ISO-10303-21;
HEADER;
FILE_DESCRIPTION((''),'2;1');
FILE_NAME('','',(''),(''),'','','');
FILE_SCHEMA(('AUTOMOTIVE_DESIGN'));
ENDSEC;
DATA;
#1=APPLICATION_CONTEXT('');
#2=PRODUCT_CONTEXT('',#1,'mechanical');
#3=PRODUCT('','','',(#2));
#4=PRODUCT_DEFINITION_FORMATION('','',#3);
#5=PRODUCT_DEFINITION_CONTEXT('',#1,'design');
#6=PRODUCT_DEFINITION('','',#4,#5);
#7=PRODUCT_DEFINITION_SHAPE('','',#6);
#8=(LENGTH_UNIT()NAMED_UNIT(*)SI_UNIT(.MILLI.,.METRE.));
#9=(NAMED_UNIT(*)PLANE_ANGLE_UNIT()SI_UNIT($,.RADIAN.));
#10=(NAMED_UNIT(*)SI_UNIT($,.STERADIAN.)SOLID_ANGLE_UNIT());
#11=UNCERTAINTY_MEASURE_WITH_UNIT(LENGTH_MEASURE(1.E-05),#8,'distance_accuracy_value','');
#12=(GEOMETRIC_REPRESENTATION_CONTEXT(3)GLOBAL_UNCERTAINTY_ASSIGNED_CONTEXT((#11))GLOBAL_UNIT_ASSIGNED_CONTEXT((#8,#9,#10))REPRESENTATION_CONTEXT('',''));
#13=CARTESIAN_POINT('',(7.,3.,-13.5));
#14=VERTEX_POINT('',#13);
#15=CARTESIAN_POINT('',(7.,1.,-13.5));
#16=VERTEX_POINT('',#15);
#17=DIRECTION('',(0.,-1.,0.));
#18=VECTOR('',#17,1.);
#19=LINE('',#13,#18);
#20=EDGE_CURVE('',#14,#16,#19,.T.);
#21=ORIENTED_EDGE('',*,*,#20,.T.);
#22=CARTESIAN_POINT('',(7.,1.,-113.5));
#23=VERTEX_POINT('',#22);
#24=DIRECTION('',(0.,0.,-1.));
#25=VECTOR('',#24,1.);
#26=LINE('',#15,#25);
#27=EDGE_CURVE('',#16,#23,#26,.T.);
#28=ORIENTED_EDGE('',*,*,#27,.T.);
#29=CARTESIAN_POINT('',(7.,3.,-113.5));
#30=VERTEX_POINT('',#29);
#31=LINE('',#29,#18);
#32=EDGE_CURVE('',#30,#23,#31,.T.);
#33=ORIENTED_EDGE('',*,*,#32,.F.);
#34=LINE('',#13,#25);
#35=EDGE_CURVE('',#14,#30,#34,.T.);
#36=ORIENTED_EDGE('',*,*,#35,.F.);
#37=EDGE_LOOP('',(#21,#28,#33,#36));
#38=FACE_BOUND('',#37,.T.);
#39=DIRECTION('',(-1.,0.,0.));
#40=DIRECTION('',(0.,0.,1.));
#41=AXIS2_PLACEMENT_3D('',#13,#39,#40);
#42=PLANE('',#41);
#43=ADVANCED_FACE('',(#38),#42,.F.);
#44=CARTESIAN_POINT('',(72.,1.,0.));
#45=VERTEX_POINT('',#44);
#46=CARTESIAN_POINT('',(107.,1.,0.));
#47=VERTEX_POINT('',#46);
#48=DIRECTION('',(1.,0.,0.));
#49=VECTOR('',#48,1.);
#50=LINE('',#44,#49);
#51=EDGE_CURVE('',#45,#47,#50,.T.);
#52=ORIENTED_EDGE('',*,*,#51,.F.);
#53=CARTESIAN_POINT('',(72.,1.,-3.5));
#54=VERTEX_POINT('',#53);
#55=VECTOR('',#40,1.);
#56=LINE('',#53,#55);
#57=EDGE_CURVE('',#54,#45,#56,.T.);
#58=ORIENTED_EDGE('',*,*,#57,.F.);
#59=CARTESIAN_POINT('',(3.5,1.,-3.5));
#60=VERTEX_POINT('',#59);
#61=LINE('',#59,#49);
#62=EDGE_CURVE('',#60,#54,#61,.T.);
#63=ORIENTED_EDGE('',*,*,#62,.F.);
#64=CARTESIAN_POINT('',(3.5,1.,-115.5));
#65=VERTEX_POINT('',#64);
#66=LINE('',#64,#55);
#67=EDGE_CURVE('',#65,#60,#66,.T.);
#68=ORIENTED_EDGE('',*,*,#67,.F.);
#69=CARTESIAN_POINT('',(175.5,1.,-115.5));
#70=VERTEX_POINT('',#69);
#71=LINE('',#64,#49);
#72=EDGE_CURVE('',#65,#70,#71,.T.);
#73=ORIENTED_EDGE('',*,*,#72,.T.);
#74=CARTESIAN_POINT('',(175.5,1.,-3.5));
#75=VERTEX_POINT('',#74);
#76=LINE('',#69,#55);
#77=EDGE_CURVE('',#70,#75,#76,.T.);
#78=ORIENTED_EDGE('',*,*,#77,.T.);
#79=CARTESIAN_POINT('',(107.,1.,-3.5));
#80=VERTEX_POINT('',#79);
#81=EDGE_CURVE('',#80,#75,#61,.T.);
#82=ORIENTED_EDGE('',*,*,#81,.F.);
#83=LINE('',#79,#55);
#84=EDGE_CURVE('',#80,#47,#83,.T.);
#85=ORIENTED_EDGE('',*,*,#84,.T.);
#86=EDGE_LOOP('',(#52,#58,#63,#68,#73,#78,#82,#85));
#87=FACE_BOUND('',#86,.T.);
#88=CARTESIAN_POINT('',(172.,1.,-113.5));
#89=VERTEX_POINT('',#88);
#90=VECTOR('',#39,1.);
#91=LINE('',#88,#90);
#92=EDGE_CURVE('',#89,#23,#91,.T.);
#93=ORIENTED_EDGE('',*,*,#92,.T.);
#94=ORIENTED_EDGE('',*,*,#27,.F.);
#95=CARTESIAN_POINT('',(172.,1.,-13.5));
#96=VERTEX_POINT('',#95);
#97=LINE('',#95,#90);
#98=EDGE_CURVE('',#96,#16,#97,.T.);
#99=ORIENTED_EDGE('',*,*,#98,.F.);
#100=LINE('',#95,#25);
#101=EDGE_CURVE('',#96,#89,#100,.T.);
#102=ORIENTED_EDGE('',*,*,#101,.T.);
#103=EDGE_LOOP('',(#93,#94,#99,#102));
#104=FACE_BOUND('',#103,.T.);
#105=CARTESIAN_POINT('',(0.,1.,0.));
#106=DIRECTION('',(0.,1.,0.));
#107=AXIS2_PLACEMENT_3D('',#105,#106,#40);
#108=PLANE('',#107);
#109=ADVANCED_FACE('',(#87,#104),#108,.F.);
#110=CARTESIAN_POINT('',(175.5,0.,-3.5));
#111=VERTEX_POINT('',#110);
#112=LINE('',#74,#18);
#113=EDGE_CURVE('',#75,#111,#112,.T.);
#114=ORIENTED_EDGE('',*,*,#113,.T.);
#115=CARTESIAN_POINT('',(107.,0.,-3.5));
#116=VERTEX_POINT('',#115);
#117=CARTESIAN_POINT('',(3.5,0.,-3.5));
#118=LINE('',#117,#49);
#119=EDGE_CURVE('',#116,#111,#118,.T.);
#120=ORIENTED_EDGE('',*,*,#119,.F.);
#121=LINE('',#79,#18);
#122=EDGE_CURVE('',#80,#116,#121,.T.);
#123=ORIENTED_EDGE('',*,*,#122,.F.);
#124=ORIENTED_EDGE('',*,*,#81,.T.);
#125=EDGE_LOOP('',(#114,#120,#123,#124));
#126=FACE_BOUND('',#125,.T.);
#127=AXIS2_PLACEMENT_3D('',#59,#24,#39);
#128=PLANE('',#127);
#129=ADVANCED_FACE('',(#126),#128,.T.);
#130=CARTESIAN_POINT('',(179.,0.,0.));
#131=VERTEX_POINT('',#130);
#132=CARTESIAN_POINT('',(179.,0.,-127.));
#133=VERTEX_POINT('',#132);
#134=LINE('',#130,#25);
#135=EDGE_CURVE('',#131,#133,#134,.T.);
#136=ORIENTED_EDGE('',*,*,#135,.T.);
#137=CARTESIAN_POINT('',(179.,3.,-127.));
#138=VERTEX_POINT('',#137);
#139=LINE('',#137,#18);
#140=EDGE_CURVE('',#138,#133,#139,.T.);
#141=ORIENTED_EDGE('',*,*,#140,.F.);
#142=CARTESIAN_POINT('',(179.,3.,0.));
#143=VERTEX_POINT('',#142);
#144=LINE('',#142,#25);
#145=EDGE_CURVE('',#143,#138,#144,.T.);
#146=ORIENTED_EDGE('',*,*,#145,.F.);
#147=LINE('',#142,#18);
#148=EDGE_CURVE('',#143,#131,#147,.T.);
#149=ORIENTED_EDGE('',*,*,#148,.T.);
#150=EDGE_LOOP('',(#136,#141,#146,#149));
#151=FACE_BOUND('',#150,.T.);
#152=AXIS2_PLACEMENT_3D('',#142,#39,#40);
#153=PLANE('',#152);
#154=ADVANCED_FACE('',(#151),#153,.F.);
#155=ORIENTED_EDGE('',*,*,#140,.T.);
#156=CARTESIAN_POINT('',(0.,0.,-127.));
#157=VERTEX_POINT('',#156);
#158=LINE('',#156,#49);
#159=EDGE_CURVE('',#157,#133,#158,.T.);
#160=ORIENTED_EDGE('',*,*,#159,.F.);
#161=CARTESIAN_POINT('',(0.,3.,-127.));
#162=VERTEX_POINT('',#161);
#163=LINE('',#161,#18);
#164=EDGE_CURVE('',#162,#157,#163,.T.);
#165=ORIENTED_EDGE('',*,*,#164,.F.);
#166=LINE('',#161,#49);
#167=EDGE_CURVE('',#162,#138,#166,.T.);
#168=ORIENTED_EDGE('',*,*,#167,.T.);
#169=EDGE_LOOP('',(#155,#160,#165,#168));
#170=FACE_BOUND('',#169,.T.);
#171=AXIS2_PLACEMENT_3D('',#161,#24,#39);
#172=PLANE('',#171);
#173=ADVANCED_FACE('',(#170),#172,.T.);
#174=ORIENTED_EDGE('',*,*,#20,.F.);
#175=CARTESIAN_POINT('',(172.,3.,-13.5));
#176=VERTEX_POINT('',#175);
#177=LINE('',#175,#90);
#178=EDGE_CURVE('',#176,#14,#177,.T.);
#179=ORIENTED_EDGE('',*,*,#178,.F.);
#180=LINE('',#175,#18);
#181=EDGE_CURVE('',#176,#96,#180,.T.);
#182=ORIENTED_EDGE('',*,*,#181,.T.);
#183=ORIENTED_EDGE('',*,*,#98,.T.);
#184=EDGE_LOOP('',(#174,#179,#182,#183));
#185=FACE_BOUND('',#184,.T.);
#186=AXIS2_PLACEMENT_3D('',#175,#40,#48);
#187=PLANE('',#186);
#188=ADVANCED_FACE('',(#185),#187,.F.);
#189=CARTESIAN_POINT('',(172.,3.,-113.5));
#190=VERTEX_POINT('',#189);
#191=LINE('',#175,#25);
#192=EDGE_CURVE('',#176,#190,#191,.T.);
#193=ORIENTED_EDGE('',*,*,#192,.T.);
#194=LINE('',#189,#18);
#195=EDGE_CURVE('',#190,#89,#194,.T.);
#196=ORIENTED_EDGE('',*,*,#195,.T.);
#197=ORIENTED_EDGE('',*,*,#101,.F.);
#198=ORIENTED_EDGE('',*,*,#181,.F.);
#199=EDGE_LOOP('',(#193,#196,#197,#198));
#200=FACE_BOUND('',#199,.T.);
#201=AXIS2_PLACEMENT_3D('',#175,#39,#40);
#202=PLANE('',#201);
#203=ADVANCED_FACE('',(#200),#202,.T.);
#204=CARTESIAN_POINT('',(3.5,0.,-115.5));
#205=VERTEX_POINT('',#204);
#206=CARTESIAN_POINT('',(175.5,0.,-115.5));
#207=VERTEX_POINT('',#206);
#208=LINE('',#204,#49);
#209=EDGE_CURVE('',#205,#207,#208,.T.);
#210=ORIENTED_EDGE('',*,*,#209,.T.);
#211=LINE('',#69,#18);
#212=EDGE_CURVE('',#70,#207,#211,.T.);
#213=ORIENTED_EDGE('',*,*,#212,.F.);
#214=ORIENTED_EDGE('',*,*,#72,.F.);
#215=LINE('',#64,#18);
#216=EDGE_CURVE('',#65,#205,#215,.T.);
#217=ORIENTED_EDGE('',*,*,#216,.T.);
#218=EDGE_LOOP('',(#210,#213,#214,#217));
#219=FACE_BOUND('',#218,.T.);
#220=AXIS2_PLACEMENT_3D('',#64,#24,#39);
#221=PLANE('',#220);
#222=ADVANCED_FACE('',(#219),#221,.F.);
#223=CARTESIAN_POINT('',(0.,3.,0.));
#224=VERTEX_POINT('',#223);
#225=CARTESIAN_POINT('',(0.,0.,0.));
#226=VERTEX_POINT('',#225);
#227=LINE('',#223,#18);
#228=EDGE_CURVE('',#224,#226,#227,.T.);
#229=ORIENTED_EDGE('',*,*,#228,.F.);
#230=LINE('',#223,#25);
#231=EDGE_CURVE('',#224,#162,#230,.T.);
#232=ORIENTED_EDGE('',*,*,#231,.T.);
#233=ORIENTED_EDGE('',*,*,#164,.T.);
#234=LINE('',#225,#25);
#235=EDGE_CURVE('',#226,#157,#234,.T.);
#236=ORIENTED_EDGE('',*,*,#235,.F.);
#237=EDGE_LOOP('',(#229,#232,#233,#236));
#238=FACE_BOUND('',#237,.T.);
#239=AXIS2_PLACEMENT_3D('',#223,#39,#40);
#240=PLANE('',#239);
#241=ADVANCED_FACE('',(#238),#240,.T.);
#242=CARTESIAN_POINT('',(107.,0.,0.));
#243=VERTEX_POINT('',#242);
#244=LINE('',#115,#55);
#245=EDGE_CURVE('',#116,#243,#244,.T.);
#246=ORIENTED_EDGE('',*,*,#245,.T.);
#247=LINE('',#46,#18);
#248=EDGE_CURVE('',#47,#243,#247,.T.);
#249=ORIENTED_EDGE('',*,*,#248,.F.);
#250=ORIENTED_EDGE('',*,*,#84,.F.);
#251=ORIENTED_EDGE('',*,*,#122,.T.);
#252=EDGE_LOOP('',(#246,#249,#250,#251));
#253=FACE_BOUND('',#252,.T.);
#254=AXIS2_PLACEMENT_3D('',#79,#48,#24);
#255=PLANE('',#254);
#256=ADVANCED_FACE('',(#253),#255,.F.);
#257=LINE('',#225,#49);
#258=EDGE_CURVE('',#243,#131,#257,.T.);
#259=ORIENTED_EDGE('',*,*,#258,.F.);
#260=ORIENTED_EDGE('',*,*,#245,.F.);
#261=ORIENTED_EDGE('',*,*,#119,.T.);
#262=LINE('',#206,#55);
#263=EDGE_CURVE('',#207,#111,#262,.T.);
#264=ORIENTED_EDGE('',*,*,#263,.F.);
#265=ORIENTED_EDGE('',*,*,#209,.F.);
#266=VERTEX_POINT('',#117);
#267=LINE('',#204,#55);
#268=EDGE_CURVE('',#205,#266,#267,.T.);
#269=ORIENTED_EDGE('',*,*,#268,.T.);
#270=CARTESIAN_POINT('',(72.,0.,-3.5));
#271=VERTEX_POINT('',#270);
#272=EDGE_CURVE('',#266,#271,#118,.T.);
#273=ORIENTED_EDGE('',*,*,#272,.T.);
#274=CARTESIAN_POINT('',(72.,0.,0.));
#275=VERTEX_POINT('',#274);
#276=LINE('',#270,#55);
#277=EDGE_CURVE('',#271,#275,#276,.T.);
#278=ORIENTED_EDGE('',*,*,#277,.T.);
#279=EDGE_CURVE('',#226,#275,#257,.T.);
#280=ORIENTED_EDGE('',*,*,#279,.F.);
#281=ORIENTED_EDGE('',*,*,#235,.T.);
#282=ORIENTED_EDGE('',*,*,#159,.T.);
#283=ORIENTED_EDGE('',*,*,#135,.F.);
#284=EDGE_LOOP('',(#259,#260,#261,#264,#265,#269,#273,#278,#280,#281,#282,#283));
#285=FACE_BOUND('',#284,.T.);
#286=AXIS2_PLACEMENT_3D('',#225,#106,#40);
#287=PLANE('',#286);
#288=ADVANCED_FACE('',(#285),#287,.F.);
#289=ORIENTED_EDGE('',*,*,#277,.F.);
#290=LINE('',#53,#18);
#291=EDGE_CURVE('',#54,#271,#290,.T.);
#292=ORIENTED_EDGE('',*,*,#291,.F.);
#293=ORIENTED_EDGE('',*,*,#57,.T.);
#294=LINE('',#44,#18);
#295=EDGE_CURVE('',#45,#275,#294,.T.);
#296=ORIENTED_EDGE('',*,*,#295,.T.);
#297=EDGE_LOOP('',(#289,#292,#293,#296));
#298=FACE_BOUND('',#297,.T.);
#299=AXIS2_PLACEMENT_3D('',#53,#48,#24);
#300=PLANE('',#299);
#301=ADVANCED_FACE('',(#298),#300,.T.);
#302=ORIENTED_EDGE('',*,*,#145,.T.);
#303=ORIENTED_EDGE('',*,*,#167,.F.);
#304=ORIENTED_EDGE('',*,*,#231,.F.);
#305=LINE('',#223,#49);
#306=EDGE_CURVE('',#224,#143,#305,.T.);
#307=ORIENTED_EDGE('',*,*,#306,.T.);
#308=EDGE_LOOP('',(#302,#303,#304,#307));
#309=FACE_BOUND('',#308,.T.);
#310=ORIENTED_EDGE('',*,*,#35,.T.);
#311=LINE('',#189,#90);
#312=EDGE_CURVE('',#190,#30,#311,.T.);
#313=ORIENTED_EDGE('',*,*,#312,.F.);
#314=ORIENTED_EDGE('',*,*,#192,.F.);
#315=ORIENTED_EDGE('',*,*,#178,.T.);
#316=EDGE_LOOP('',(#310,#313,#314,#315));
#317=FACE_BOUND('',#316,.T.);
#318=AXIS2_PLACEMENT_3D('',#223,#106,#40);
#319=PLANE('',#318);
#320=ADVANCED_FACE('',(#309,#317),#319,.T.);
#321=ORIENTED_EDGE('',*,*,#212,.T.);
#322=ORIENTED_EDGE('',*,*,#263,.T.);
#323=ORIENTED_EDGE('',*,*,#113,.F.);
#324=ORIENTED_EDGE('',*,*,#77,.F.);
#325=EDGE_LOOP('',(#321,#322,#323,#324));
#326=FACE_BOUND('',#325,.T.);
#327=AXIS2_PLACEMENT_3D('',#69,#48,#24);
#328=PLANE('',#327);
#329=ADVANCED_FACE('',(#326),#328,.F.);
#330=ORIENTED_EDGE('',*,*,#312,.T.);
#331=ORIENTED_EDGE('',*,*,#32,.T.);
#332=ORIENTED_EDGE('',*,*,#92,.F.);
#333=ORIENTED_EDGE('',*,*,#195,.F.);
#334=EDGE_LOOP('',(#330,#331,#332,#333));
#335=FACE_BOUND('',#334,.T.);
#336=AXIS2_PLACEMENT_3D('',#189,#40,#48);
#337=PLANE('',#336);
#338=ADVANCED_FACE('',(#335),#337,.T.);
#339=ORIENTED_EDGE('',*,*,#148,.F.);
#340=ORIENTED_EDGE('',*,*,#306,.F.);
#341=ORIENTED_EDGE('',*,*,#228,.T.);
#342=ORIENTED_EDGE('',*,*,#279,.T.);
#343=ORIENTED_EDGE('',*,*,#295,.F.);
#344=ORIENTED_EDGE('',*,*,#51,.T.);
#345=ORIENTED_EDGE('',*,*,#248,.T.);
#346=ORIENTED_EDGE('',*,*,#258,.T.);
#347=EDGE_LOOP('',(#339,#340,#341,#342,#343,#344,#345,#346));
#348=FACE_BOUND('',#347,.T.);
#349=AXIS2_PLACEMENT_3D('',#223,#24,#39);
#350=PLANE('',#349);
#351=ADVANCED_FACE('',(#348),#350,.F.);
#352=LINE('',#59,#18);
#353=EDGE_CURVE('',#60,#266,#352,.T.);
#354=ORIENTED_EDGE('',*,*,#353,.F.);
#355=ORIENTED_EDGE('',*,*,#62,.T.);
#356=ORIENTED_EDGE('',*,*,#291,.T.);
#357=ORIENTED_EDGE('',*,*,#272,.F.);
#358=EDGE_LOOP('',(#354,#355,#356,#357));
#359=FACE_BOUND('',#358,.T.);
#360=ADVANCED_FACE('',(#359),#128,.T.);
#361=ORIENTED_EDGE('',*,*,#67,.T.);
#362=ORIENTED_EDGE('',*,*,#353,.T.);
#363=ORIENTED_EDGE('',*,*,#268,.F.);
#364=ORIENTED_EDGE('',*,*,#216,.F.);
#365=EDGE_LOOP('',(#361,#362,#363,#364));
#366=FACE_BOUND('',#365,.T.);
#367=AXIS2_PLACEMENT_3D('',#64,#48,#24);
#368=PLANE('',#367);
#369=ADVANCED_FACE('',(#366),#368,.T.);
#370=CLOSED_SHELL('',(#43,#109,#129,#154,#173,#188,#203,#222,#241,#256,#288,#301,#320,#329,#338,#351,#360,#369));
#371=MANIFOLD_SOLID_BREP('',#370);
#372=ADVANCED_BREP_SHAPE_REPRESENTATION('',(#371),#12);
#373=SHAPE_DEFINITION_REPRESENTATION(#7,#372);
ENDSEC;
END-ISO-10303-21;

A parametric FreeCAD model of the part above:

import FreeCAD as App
import Part
import Sketcher

V = App.Vector


def add_polygon(sketch, points):
    """Adds a closed chain of lines whose ends are joined by coincident constraints."""
    first, n = sketch.GeometryCount, len(points)
    for a, b in zip(points, points[1:] + points[:1]):
        sketch.addGeometry(Part.LineSegment(App.Vector(*a, 0), App.Vector(*b, 0)), False)
    for i in range(n):
        sketch.addConstraint(Sketcher.Constraint("Coincident", first + i, 2, first + (i + 1) % n, 1))

doc = App.newDocument("Part")
body = doc.addObject("PartDesign::Body", "Body")

# Sketch on XZ plane
sketch1 = body.newObject("Sketcher::SketchObject", "Sketch")
sketch1.AttachmentSupport = (doc.getObject("XZ_Plane"), [""])
sketch1.MapMode = "FlatFace"
add_polygon(sketch1, [(0, -127), (0, 0), (179, 0), (179, -127)])  # lines 0-3
add_polygon(sketch1, [(172, -13.5), (7, -13.5), (7, -113.5), (172, -113.5)])  # lines 4-7
sketch1.addConstraint(Sketcher.Constraint("Vertical", 0))
sketch1.addConstraint(Sketcher.Constraint("Horizontal", 1))
sketch1.addConstraint(Sketcher.Constraint("Vertical", 2))
sketch1.addConstraint(Sketcher.Constraint("Horizontal", 3))
sketch1.addConstraint(Sketcher.Constraint("Horizontal", 4))
sketch1.addConstraint(Sketcher.Constraint("Vertical", 5))
sketch1.addConstraint(Sketcher.Constraint("Horizontal", 6))
sketch1.addConstraint(Sketcher.Constraint("Vertical", 7))
sketch1.addConstraint(Sketcher.Constraint("Coincident", 0, 2, -1, 1))
sketch1.addConstraint(Sketcher.Constraint("DistanceX", 1, 1, 1, 2, 179.0))
sketch1.addConstraint(Sketcher.Constraint("DistanceX", 4, 2, 4, 1, 165.0))
sketch1.addConstraint(Sketcher.Constraint("DistanceY", 0, 1, 0, 2, 127.0))
sketch1.addConstraint(Sketcher.Constraint("DistanceY", 5, 2, 5, 1, 100.0))
sketch1.addConstraint(Sketcher.Constraint("DistanceX", -1, 1, 4, 2, 7.0))
sketch1.addConstraint(Sketcher.Constraint("DistanceY", 4, 2, -1, 1, 13.5))
pad1 = body.newObject("PartDesign::Pad", "Pad")
pad1.Profile = sketch1
pad1.Length = 3
pad1.Reversed = True

# Sketch on XZ plane
sketch2 = body.newObject("Sketcher::SketchObject", "Sketch001")
sketch2.AttachmentSupport = (doc.getObject("XZ_Plane"), [""])
sketch2.MapMode = "FlatFace"
add_polygon(sketch2, [(3.5, -115.5), (3.5, -3.5), (72, -3.5), (72, 0), (107, 0), (107, -3.5), (175.5, -3.5), (175.5, -115.5)])  # lines 0-7
sketch2.addConstraint(Sketcher.Constraint("Vertical", 0))
sketch2.addConstraint(Sketcher.Constraint("Horizontal", 1))
sketch2.addConstraint(Sketcher.Constraint("Vertical", 2))
sketch2.addConstraint(Sketcher.Constraint("Horizontal", 3))
sketch2.addConstraint(Sketcher.Constraint("Vertical", 4))
sketch2.addConstraint(Sketcher.Constraint("Horizontal", 5))
sketch2.addConstraint(Sketcher.Constraint("Vertical", 6))
sketch2.addConstraint(Sketcher.Constraint("Horizontal", 7))
sketch2.addConstraint(Sketcher.Constraint("PointOnObject", 2, 2, -1))
sketch2.addConstraint(Sketcher.Constraint("Horizontal", 1, 2, 4, 2))
sketch2.addConstraint(Sketcher.Constraint("Equal", 1, 5))
sketch2.addConstraint(Sketcher.Constraint("DistanceX", 3, 1, 3, 2, 35.0))
sketch2.addConstraint(Sketcher.Constraint("DistanceX", 7, 2, 7, 1, 172.0))
sketch2.addConstraint(Sketcher.Constraint("DistanceY", 0, 1, 0, 2, 112.0))
sketch2.addConstraint(Sketcher.Constraint("DistanceY", 2, 1, 2, 2, 3.5))
sketch2.addConstraint(Sketcher.Constraint("DistanceX", -1, 1, 1, 2, 72.0))
pocket1 = body.newObject("PartDesign::Pocket", "Pocket")
pocket1.Profile = sketch2
pocket1.Length = 1

doc.recompute()
